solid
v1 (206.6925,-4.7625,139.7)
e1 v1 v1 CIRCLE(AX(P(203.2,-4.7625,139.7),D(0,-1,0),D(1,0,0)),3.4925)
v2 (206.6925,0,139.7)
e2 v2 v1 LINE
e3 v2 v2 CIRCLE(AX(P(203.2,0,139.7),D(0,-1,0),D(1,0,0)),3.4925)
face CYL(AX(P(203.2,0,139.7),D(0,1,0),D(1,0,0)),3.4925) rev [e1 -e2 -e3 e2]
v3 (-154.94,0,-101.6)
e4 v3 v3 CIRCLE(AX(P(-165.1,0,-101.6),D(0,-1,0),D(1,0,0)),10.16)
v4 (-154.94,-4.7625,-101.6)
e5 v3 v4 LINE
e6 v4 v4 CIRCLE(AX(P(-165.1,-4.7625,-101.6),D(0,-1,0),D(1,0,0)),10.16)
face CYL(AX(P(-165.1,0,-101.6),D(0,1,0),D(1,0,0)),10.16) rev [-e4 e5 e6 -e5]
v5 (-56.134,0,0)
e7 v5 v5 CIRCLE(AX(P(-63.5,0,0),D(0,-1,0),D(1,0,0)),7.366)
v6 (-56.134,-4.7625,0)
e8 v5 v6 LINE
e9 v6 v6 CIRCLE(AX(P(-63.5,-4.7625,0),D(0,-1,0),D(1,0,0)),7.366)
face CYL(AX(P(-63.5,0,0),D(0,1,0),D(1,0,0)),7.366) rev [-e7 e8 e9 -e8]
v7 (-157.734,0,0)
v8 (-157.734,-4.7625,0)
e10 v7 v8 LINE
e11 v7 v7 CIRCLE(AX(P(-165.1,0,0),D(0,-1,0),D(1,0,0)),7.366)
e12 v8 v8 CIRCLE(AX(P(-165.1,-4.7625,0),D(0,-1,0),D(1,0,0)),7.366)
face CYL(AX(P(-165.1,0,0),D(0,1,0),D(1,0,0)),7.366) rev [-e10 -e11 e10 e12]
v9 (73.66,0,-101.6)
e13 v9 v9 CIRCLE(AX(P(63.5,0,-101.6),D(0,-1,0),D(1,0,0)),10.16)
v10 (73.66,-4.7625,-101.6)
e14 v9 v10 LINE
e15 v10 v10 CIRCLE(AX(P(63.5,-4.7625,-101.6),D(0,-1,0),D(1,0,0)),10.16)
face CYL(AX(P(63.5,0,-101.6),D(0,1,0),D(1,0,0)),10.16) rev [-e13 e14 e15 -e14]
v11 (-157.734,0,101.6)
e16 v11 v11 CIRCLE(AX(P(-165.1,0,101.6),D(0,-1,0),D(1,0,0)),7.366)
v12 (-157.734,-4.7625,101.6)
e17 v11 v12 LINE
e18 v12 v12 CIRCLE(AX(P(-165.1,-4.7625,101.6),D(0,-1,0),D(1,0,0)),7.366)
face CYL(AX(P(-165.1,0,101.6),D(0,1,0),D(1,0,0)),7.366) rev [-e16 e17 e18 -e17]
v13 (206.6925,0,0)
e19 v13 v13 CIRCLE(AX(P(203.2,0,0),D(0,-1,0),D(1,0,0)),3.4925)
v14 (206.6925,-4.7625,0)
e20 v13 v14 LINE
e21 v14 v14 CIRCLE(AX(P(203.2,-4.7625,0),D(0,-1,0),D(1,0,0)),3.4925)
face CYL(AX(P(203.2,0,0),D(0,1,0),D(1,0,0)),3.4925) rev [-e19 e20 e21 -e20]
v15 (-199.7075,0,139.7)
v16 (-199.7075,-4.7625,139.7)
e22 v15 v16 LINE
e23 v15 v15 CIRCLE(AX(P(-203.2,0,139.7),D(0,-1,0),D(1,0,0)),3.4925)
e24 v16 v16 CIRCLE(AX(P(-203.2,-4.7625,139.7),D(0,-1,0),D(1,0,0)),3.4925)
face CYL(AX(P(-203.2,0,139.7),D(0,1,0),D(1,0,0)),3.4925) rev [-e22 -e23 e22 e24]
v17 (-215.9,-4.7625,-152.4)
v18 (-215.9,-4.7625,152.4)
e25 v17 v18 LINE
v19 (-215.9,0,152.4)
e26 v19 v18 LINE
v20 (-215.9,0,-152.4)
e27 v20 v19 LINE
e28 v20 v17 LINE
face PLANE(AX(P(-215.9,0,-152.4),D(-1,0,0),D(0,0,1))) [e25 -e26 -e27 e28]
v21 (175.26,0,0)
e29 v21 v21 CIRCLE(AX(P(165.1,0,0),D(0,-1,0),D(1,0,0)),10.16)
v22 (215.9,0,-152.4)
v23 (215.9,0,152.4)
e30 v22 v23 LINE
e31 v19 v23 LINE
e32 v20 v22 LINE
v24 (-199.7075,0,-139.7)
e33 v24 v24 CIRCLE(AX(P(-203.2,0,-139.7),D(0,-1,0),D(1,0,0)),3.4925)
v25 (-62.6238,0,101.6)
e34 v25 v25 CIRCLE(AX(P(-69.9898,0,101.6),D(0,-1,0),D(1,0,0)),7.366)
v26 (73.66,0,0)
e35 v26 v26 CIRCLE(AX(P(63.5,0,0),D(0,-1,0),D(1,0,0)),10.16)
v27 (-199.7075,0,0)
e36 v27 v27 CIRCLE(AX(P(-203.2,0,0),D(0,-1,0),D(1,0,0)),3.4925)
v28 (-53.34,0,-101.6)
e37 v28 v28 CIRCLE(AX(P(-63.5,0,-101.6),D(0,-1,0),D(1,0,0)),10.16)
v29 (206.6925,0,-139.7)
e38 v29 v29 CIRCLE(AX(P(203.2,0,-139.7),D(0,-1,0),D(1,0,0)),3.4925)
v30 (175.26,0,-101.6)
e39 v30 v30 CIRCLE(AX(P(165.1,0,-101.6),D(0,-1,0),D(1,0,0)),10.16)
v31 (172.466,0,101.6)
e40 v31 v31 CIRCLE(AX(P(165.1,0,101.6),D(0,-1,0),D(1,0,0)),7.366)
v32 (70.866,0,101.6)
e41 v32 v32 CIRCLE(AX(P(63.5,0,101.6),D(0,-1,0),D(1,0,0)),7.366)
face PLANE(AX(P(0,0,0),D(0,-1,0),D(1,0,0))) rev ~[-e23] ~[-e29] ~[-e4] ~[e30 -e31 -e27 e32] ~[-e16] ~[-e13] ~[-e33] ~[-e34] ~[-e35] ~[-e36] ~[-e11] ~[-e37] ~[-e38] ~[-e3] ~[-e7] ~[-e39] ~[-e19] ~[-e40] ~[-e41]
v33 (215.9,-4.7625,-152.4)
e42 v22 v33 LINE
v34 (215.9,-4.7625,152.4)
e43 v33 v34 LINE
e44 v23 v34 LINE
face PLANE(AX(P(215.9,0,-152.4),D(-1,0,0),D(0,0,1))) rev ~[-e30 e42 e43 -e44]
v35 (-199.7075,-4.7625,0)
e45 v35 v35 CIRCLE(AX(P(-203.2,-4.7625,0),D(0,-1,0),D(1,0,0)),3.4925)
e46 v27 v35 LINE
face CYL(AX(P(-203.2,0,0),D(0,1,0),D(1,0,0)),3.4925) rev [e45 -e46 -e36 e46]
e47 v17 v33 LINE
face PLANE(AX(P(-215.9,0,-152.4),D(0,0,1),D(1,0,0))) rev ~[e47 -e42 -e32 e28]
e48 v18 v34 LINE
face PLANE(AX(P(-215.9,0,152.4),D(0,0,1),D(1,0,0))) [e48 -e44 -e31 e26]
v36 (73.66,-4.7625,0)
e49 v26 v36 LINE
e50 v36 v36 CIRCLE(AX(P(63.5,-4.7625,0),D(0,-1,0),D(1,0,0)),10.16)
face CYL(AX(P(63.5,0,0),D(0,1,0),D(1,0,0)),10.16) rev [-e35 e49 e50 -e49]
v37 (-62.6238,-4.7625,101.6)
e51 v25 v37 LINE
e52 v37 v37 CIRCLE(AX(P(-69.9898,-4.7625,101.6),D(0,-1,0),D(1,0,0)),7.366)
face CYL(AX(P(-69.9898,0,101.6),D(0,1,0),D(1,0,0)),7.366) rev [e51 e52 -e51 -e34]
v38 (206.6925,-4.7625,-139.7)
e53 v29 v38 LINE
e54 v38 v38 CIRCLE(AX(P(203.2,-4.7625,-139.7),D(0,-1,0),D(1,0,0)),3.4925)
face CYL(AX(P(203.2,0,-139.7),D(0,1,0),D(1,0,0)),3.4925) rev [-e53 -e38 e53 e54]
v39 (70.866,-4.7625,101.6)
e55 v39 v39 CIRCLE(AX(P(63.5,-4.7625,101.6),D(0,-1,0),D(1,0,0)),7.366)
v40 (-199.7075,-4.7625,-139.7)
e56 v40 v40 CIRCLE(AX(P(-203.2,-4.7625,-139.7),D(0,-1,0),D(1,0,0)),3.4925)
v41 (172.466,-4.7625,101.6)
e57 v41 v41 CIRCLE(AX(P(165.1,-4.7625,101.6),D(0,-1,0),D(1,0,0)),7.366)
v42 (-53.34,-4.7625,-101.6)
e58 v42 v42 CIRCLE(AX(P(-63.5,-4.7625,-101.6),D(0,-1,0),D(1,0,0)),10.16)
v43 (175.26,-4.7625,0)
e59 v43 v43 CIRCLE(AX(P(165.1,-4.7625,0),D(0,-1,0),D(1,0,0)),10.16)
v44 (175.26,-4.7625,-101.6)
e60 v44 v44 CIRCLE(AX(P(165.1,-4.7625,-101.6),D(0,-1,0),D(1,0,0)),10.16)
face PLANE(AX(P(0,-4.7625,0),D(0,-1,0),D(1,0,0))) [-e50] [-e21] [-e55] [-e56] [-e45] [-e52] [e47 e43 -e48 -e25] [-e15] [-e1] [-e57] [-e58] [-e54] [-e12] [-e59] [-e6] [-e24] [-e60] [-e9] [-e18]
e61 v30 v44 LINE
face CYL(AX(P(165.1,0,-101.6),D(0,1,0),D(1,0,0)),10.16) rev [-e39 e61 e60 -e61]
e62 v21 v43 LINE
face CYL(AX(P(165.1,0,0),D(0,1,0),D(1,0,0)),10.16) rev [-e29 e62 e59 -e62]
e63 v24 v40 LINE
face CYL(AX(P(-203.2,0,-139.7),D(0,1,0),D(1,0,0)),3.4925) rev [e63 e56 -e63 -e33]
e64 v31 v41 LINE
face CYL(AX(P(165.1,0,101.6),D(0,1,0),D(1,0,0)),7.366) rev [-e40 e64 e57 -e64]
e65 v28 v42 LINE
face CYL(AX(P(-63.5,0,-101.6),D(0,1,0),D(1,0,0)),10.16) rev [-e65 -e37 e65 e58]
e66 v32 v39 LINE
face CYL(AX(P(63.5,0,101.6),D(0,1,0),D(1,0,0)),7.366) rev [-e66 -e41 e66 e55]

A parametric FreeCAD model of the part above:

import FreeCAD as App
import Part
import Sketcher

V = App.Vector
Q = App.Units.Quantity


def add_polygon(sketch, points):
    """Adds a closed chain of lines whose ends are joined by coincident constraints."""
    first, n = sketch.GeometryCount, len(points)
    for a, b in zip(points, points[1:] + points[:1]):
        sketch.addGeometry(Part.LineSegment(App.Vector(*a, 0), App.Vector(*b, 0)), False)
    for i in range(n):
        sketch.addConstraint(Sketcher.Constraint("Coincident", first + i, 2, first + (i + 1) % n, 1))

doc = App.newDocument("Part")
body = doc.addObject("PartDesign::Body", "Body")

# Sketch on XZ plane
sketch1 = body.newObject("Sketcher::SketchObject", "Sketch")
sketch1.AttachmentSupport = (doc.getObject("XZ_Plane"), [""])
sketch1.MapMode = "FlatFace"
add_polygon(sketch1, [(-215.9, 152.4), (-215.9, -152.4), (215.9, -152.4), (215.9, 152.4)])  # lines 0-3
sketch1.addGeometry(Part.Circle(V(-203.2, -139.7, 0), V(0, 0, 1), 3.5), False)  # 4
sketch1.addGeometry(Part.Circle(V(-165.1, -101.6, 0), V(0, 0, 1), 10.2), False)  # 5
sketch1.addGeometry(Part.Circle(V(-63.5, -101.6, 0), V(0, 0, 1), 10.2), False)  # 6
sketch1.addGeometry(Part.Circle(V(63.5, -101.6, 0), V(0, 0, 1), 10.2), False)  # 7
sketch1.addGeometry(Part.Circle(V(203.2, -139.7, 0), V(0, 0, 1), 3.5), False)  # 8
sketch1.addGeometry(Part.Circle(V(165.1, -101.6, 0), V(0, 0, 1), 10.2), False)  # 9
sketch1.addGeometry(Part.Circle(V(-203.2, 0, 0), V(0, 0, 1), 3.5), False)  # 10
sketch1.addGeometry(Part.Circle(V(-165.1, 0, 0), V(0, 0, 1), 7.4), False)  # 11
sketch1.addGeometry(Part.Circle(V(-63.5, 0, 0), V(0, 0, 1), 7.4), False)  # 12
sketch1.addGeometry(Part.Circle(V(-165.1, 101.6, 0), V(0, 0, 1), 7.4), False)  # 13
sketch1.addGeometry(Part.Circle(V(-203.2, 139.7, 0), V(0, 0, 1), 3.5), False)  # 14
sketch1.addGeometry(Part.Circle(V(-70, 101.6, 0), V(0, 0, 1), 7.4), False)  # 15
sketch1.addGeometry(Part.Circle(V(63.5, 0, 0), V(0, 0, 1), 10.2), False)  # 16
sketch1.addGeometry(Part.Circle(V(165.1, 0, 0), V(0, 0, 1), 10.2), False)  # 17
sketch1.addGeometry(Part.Circle(V(203.2, 0, 0), V(0, 0, 1), 3.5), False)  # 18
sketch1.addGeometry(Part.Circle(V(63.5, 101.6, 0), V(0, 0, 1), 7.4), False)  # 19
sketch1.addGeometry(Part.Circle(V(165.1, 101.6, 0), V(0, 0, 1), 7.4), False)  # 20
sketch1.addGeometry(Part.Circle(V(203.2, 139.7, 0), V(0, 0, 1), 3.5), False)  # 21
sketch1.addConstraint(Sketcher.Constraint("Vertical", 0))
sketch1.addConstraint(Sketcher.Constraint("Horizontal", 1))
sketch1.addConstraint(Sketcher.Constraint("Vertical", 2))
sketch1.addConstraint(Sketcher.Constraint("Horizontal", 3))
sketch1.addConstraint(Sketcher.Constraint("Equal", 5, 6))
sketch1.addConstraint(Sketcher.Constraint("Equal", 6, 7))
sketch1.addConstraint(Sketcher.Constraint("Equal", 4, 8))
sketch1.addConstraint(Sketcher.Constraint("Equal", 7, 9))
sketch1.addConstraint(Sketcher.Constraint("Equal", 8, 10))
sketch1.addConstraint(Sketcher.Constraint("Equal", 11, 12))
sketch1.addConstraint(Sketcher.Constraint("Equal", 12, 13))
sketch1.addConstraint(Sketcher.Constraint("Equal", 10, 14))
sketch1.addConstraint(Sketcher.Constraint("Equal", 13, 15))
sketch1.addConstraint(Sketcher.Constraint("Equal", 9, 16))
sketch1.addConstraint(Sketcher.Constraint("Equal", 16, 17))
sketch1.addConstraint(Sketcher.Constraint("Equal", 14, 18))
sketch1.addConstraint(Sketcher.Constraint("Equal", 15, 19))
sketch1.addConstraint(Sketcher.Constraint("Equal", 19, 20))
sketch1.addConstraint(Sketcher.Constraint("Equal", 18, 21))
sketch1.addConstraint(Sketcher.Constraint("Symmetric", 9, 3, 13, 3, -1, 1))
sketch1.addConstraint(Sketcher.Constraint("Symmetric", 8, 3, 14, 3, -1, 1))
sketch1.addConstraint(Sketcher.Constraint("Symmetric", 12, 3, 16, 3, -1, 1))
sketch1.addConstraint(Sketcher.Constraint("Symmetric", 11, 3, 17, 3, -1, 1))
sketch1.addConstraint(Sketcher.Constraint("Symmetric", 10, 3, 18, 3, -1, 1))
sketch1.addConstraint(Sketcher.Constraint("Symmetric", 6, 3, 19, 3, -1, 1))
sketch1.addConstraint(Sketcher.Constraint("Symmetric", 5, 3, 20, 3, -1, 1))
sketch1.addConstraint(Sketcher.Constraint("Symmetric", 4, 3, 21, 3, -1, 1))
sketch1.addConstraint(Sketcher.Constraint("Symmetric", 0, 2, 2, 2, -1, 1))
sketch1.addConstraint(Sketcher.Constraint("Symmetric", 6, 3, 7, 3, -2))
sketch1.addConstraint(Sketcher.Constraint("Symmetric", 4, 3, 8, 3, -2))
sketch1.addConstraint(Sketcher.Constraint("Symmetric", 5, 3, 9, 3, -2))
sketch1.addConstraint(Sketcher.Constraint("PointOnObject", 10, 3, -1))
sketch1.addConstraint(Sketcher.Constraint("PointOnObject", 11, 3, -1))
sketch1.addConstraint(Sketcher.Constraint("PointOnObject", 12, 3, -1))
sketch1.addConstraint(Sketcher.Constraint("Horizontal", 5, 3, 6, 3))
sketch1.addConstraint(Sketcher.Constraint("Horizontal", 13, 3, 15, 3))
sketch1.addConstraint(Sketcher.Constraint("Vertical", 4, 3, 10, 3))
sketch1.addConstraint(Sketcher.Constraint("Vertical", 5, 3, 11, 3))
sketch1.addConstraint(Sketcher.Constraint("Vertical", 6, 3, 12, 3))
sketch1.addConstraint(Sketcher.Constraint("Diameter", 5, Q("0.8 in")))
sketch1.addConstraint(Sketcher.Constraint("Diameter", 11, Q("0.58 in")))
sketch1.addConstraint(Sketcher.Constraint("DistanceX", 1, 1, 1, 2, Q("17 in")))
sketch1.addConstraint(Sketcher.Constraint("DistanceY", 0, 2, 0, 1, Q("12 in")))
sketch1.addConstraint(Sketcher.Constraint("Diameter", 4, Q("0.275 in")))
sketch1.addConstraint(Sketcher.Constraint("DistanceX", 4, 3, -1, 1, Q("8 in")))
sketch1.addConstraint(Sketcher.Constraint("DistanceY", 5, 3, -1, 1, Q("4 in")))
sketch1.addConstraint(Sketcher.Constraint("DistanceX", 5, 3, 6, 3, Q("4 in")))
sketch1.addConstraint(Sketcher.Constraint("DistanceX", 6, 3, 7, 3, Q("5 in")))
sketch1.addConstraint(Sketcher.Constraint("DistanceY", 4, 3, -1, 1, Q("5.5 in")))
sketch1.addConstraint(Sketcher.Constraint("DistanceX", 15, 3, -1, 1, Q("69.9898 mm")))
pad1 = body.newObject("PartDesign::Pad", "Pad")
pad1.Profile = sketch1
pad1.Length = Q("0.1875 in")

doc.recompute()
